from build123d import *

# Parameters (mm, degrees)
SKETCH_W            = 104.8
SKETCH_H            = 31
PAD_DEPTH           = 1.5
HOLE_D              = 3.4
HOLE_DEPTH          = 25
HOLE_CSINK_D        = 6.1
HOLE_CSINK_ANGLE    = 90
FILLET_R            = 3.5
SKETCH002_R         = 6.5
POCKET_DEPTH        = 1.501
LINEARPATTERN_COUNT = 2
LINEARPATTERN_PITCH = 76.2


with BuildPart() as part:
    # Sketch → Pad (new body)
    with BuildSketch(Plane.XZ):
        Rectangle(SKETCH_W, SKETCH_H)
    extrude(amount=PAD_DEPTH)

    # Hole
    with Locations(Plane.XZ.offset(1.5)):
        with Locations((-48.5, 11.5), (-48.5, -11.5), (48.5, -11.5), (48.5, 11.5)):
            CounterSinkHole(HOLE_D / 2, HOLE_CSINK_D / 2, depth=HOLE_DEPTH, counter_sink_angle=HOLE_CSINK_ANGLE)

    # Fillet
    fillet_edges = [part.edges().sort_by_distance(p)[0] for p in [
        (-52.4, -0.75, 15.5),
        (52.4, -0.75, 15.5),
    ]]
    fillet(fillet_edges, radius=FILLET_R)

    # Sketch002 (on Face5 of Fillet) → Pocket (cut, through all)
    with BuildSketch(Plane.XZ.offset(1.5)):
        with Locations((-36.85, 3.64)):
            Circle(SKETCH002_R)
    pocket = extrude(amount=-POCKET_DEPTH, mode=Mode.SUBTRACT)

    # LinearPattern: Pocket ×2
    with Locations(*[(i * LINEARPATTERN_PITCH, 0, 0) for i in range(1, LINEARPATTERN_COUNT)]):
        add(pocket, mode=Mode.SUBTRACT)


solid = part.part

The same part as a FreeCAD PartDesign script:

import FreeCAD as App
import Part
import Sketcher
from FreeCAD import Vector
Q = App.Units.Quantity


def edges_at(feature, points):
    """Names of the edges that pass closest to the given points."""
    edges = feature.Shape.Edges
    near = lambda p: min(range(len(edges)), key=lambda i: edges[i].distToShape(Part.Vertex(*p))[0])
    return sorted({f"Edge{near(p) + 1}" for p in points})


def add_polygon(sketch, points):
    """Adds a closed chain of lines whose ends are joined by coincident constraints."""
    first, n = sketch.GeometryCount, len(points)
    for a, b in zip(points, points[1:] + points[:1]):
        sketch.addGeometry(Part.LineSegment(App.Vector(*a, 0), App.Vector(*b, 0)), False)
    for i in range(n):
        sketch.addConstraint(Sketcher.Constraint("Coincident", first + i, 2, first + (i + 1) % n, 1))

doc = App.newDocument("Part")
body = doc.addObject("PartDesign::Body", "Body")

sketch1 = body.newObject("Sketcher::SketchObject", "Sketch")
sketch1.AttachmentSupport = (doc.getObject("XZ_Plane"), [""])
sketch1.MapMode = "FlatFace"
add_polygon(sketch1, [(-52, 16), (-52, -16), (52, -16), (52, 16)])
sketch1.addConstraint([
    Sketcher.Constraint("Vertical", 0),
    Sketcher.Constraint("Horizontal", 1),
    Sketcher.Constraint("Vertical", 2),
    Sketcher.Constraint("Horizontal", 3),
    Sketcher.Constraint("Symmetric", 0, 2, 2, 2, -1, 1),
    Sketcher.Constraint("DistanceY", 0, 2, 0, 1, Q("31 mm")),
    Sketcher.Constraint("DistanceX", 1, 1, 1, 2, Q("104.8 mm")),
])
pad1 = body.newObject("PartDesign::Pad", "Pad")
pad1.Profile = sketch1
pad1.Length = 1.5

sketch2 = body.newObject("Sketcher::SketchObject", "Sketch001")
sketch2.AttachmentSupport = (doc.getObject("XZ_Plane"), [""])
sketch2.MapMode = "FlatFace"
sketch2.AttachmentOffset = App.Placement(Vector(0, 0, 1.5), App.Rotation())
sketch2.addGeometry([
    Part.Circle(Vector(-48.5, 11.5, 0), Vector(0, 0, 1), 1.7),
    Part.Circle(Vector(-48.5, -11.5, 0), Vector(0, 0, 1), 1.7),
    Part.Circle(Vector(48.5, -11.5, 0), Vector(0, 0, 1), 1.7),
    Part.Circle(Vector(48.5, 11.5, 0), Vector(0, 0, 1), 1.7),
], False)
sketch2.addConstraint([
    Sketcher.Constraint("Equal", 0, 1),
    Sketcher.Constraint("Equal", 1, 2),
    Sketcher.Constraint("Equal", 2, 3),
    Sketcher.Constraint("Symmetric", 0, 3, 2, 3, -1, 1),
    Sketcher.Constraint("Symmetric", 1, 3, 3, 3, -1, 1),
    Sketcher.Constraint("Symmetric", 1, 3, 2, 3, -2),
    Sketcher.Constraint("Diameter", 0, Q("3.4 mm")),
    Sketcher.Constraint("DistanceY", 1, 3, 0, 3, Q("23 mm")),
    Sketcher.Constraint("DistanceX", 1, 3, 2, 3, Q("97 mm")),
])
doc.recompute()
hole = body.newObject("PartDesign::Hole", "Hole")
hole.Profile = sketch2
hole.ThreadType = "None"
hole.Diameter = 3.4
hole.DepthType = "Dimension"
hole.Depth = 25
hole.DrillPoint = "Flat"
hole.HoleCutType = "Countersink"
hole.HoleCutDiameter = 6.1
hole.HoleCutCountersinkAngle = 90
doc.recompute()

fillet = body.newObject("PartDesign::Fillet", "Fillet")
fillet.Base = (hole, edges_at(hole, [(-52.4, -0.75, 15.5), (52.4, -0.75, 15.5)]))
fillet.Radius = 3.5

sketch3 = body.newObject("Sketcher::SketchObject", "Sketch002")
sketch3.AttachmentSupport = (doc.getObject("XZ_Plane"), [""])
sketch3.MapMode = "FlatFace"
sketch3.AttachmentOffset = App.Placement(Vector(0, 0, 1.5), App.Rotation())
sketch3.addGeometry(Part.Circle(Vector(-37, 4, 0), Vector(0, 0, 1), 6), False)
sketch3.addConstraint([
    Sketcher.Constraint("Diameter", 0, Q("13 mm")),
    Sketcher.Constraint("DistanceX", 0, 3, -1, 1, Q("36.85 mm")),
    Sketcher.Constraint("DistanceY", -1, 1, 0, 3, Q("3.64 mm")),
])
pocket1 = body.newObject("PartDesign::Pocket", "Pocket")
pocket1.Profile = sketch3
pocket1.Type = "ThroughAll"
doc.recompute()

linearpattern = body.newObject("PartDesign::LinearPattern", "LinearPattern")
linearpattern.Originals = [pocket1]
linearpattern.Direction = (doc.getObject("X_Axis"), [""])
linearpattern.Mode = "offset"
linearpattern.Offset = 76.2
linearpattern.Occurrences = 2
body.Tip = linearpattern

doc.recompute()
